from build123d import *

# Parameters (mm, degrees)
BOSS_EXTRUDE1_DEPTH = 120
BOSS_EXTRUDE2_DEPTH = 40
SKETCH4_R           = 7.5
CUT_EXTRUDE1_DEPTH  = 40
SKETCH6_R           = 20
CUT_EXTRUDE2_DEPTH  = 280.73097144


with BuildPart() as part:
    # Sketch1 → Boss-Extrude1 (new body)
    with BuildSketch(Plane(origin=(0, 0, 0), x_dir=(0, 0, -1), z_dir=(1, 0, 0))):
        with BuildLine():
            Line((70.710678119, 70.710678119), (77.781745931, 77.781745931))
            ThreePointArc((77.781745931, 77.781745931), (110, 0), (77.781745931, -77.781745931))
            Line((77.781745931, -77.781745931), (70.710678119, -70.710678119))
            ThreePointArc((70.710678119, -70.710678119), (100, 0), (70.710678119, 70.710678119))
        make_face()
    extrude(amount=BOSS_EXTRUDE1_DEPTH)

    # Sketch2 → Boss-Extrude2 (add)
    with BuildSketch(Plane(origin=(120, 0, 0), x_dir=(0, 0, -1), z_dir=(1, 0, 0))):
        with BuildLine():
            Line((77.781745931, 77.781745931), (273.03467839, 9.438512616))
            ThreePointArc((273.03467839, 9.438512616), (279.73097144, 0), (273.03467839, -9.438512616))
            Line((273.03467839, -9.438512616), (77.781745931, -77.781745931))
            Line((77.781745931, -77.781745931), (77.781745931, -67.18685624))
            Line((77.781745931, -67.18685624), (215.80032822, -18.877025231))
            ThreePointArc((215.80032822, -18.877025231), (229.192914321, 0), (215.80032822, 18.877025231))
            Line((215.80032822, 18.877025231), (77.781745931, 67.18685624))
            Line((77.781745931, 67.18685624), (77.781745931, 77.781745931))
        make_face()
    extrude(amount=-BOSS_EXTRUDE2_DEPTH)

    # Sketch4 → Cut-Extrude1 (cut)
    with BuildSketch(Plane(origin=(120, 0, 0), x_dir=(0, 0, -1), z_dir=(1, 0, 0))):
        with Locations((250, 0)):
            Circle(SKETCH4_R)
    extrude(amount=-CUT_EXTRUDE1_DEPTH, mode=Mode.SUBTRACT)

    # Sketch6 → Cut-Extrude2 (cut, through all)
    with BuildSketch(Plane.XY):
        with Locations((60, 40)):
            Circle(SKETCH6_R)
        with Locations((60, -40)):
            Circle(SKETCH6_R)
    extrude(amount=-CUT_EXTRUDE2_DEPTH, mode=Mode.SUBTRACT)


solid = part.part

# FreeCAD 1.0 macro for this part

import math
import FreeCAD as App
import Part
import Sketcher
Q = App.Units.Quantity

doc = App.newDocument("Part")
body = doc.addObject("PartDesign::Body", "Body")

# Sketch on YZ plane
sketch1 = body.newObject("Sketcher::SketchObject", "Sketch")
sketch1.AttachmentSupport = (doc.getObject("YZ_Plane"), [""])
sketch1.MapMode = "FlatFace"
sketch1.addGeometry([
    Part.LineSegment(App.Vector(77.781746, -77.781746, 0), App.Vector(70.710678, -70.710678, 0)),
    Part.ArcOfCircle(Part.Circle(App.Vector(0, 0, 0), App.Vector(0, 0, 1), 100), math.radians(-135), math.radians(-45)),
    Part.LineSegment(App.Vector(-70.710678, -70.710678, 0), App.Vector(-77.781746, -77.781746, 0)),
    Part.ArcOfCircle(Part.Circle(App.Vector(0, 0, 0), App.Vector(0, 0, 1), 110), math.radians(-135), math.radians(-45)),
], False)
sketch1.addConstraint([
    Sketcher.Constraint("Coincident", 0, 2, 1, 2),
    Sketcher.Constraint("Coincident", 1, 1, 2, 1),
    Sketcher.Constraint("Coincident", 2, 2, 3, 1),
    Sketcher.Constraint("Coincident", 3, 2, 0, 1),
    Sketcher.Constraint("Coincident", 1, 3, -1, 1),
    Sketcher.Constraint("Coincident", 3, 3, -1, 1),
    Sketcher.Constraint("Perpendicular", 0, 2),
    Sketcher.Constraint("Horizontal", 0, 2, 1, 1),
    Sketcher.Constraint("Horizontal", 2, 2, 3, 2),
    Sketcher.Constraint("Radius", 1, Q("100 mm")),
    Sketcher.Constraint("Radius", 3, Q("110 mm")),
    Sketcher.Constraint("DistanceX", -1, 1, 0, 2, Q("70.710678 mm")),
])
pad1 = body.newObject("PartDesign::Pad", "Pad")
pad1.Profile = sketch1
pad1.Length = 120

# Sketch on YZ plane
sketch2 = body.newObject("Sketcher::SketchObject", "Sketch001")
sketch2.AttachmentSupport = (doc.getObject("YZ_Plane"), [""])
sketch2.MapMode = "FlatFace"
sketch2.AttachmentOffset = App.Placement(App.Vector(0, 0, 120), App.Rotation())
sketch2.addGeometry([
    Part.LineSegment(App.Vector(9.438513, -273.034678, 0), App.Vector(77.781746, -77.781746, 0)),  # 0
    Part.LineSegment(App.Vector(77.781746, -77.781746, 0), App.Vector(67.186856, -77.781746, 0)),  # 1
    Part.LineSegment(App.Vector(67.186856, -77.781746, 0), App.Vector(18.877025, -215.800328, 0)),  # 2
    Part.ArcOfCircle(Part.Circle(App.Vector(0, -209.192914, 0), App.Vector(0, 0, 1), 20), math.radians(-160.708723), math.radians(-19.291277)),  # 3
    Part.LineSegment(App.Vector(-18.877025, -215.800328, 0), App.Vector(-67.186856, -77.781746, 0)),  # 4
    Part.LineSegment(App.Vector(-67.186856, -77.781746, 0), App.Vector(-77.781746, -77.781746, 0)),  # 5
    Part.LineSegment(App.Vector(-77.781746, -77.781746, 0), App.Vector(-9.438513, -273.034678, 0)),  # 6
    Part.ArcOfCircle(Part.Circle(App.Vector(0, -269.730971, 0), App.Vector(0, 0, 1), 10), math.radians(-160.708723), math.radians(-19.291277)),  # 7
], False)
sketch2.addConstraint([
    Sketcher.Constraint("Coincident", 0, 2, 1, 1),
    Sketcher.Constraint("Coincident", 1, 2, 2, 1),
    Sketcher.Constraint("Tangent", 2, 2, 3, 2),
    Sketcher.Constraint("Tangent", 3, 1, 4, 1),
    Sketcher.Constraint("Coincident", 4, 2, 5, 1),
    Sketcher.Constraint("Coincident", 5, 2, 6, 1),
    Sketcher.Constraint("Tangent", 6, 2, 7, 1),
    Sketcher.Constraint("Tangent", 7, 2, 0, 1),
    Sketcher.Constraint("Horizontal", 1),
    Sketcher.Constraint("Horizontal", 5),
    Sketcher.Constraint("Symmetric", 2, 2, 3, 1, -2),
    Sketcher.Constraint("Symmetric", 0, 2, 5, 2, -2),
    Sketcher.Constraint("PointOnObject", 7, 3, -2),
    Sketcher.Constraint("Parallel", 0, 2),
    Sketcher.Constraint("Radius", 3, Q("20 mm")),
    Sketcher.Constraint("Radius", 7, Q("10 mm")),
    Sketcher.Constraint("DistanceX", 1, 2, 1, 1, Q("10.59489 mm")),
    Sketcher.Constraint("Distance", 0, Q("206.868328 mm")),
    Sketcher.Constraint("DistanceY", 7, 3, -1, 1, Q("269.730971 mm")),
    Sketcher.Constraint("DistanceY", 2, 2, -1, 1, Q("215.800328 mm")),
])
pad2 = body.newObject("PartDesign::Pad", "Pad001")
pad2.Profile = sketch2
pad2.Length = 40
pad2.Reversed = True

# Sketch on YZ plane
sketch3 = body.newObject("Sketcher::SketchObject", "Sketch002")
sketch3.AttachmentSupport = (doc.getObject("YZ_Plane"), [""])
sketch3.MapMode = "FlatFace"
sketch3.AttachmentOffset = App.Placement(App.Vector(0, 0, 120), App.Rotation())
sketch3.addGeometry(Part.Circle(App.Vector(0, -250, 0), App.Vector(0, 0, 1), 7.5), False)
sketch3.addConstraint([
    Sketcher.Constraint("PointOnObject", 0, 3, -2),
    Sketcher.Constraint("Diameter", 0, Q("15 mm")),
    Sketcher.Constraint("DistanceY", 0, 3, -1, 1, Q("250 mm")),
])
pocket1 = body.newObject("PartDesign::Pocket", "Pocket")
pocket1.Profile = sketch3
pocket1.Length = 40

# Sketch on XY plane
sketch4 = body.newObject("Sketcher::SketchObject", "Sketch003")
sketch4.AttachmentSupport = (doc.getObject("XY_Plane"), [""])
sketch4.MapMode = "FlatFace"
sketch4.addGeometry([
    Part.Circle(App.Vector(60, 40, 0), App.Vector(0, 0, 1), 20),
    Part.Circle(App.Vector(60, -40, 0), App.Vector(0, 0, 1), 20),
], False)
sketch4.addConstraint([
    Sketcher.Constraint("Equal", 0, 1),
    Sketcher.Constraint("Symmetric", 0, 3, 1, 3, -1),
    Sketcher.Constraint("Diameter", 0, Q("40 mm")),
    Sketcher.Constraint("DistanceX", -1, 1, 0, 3, Q("60 mm")),
    Sketcher.Constraint("DistanceY", -1, 1, 0, 3, Q("40 mm")),
])
pocket2 = body.newObject("PartDesign::Pocket", "Pocket001")
pocket2.Profile = sketch4
pocket2.Type = "ThroughAll"

doc.recompute()
